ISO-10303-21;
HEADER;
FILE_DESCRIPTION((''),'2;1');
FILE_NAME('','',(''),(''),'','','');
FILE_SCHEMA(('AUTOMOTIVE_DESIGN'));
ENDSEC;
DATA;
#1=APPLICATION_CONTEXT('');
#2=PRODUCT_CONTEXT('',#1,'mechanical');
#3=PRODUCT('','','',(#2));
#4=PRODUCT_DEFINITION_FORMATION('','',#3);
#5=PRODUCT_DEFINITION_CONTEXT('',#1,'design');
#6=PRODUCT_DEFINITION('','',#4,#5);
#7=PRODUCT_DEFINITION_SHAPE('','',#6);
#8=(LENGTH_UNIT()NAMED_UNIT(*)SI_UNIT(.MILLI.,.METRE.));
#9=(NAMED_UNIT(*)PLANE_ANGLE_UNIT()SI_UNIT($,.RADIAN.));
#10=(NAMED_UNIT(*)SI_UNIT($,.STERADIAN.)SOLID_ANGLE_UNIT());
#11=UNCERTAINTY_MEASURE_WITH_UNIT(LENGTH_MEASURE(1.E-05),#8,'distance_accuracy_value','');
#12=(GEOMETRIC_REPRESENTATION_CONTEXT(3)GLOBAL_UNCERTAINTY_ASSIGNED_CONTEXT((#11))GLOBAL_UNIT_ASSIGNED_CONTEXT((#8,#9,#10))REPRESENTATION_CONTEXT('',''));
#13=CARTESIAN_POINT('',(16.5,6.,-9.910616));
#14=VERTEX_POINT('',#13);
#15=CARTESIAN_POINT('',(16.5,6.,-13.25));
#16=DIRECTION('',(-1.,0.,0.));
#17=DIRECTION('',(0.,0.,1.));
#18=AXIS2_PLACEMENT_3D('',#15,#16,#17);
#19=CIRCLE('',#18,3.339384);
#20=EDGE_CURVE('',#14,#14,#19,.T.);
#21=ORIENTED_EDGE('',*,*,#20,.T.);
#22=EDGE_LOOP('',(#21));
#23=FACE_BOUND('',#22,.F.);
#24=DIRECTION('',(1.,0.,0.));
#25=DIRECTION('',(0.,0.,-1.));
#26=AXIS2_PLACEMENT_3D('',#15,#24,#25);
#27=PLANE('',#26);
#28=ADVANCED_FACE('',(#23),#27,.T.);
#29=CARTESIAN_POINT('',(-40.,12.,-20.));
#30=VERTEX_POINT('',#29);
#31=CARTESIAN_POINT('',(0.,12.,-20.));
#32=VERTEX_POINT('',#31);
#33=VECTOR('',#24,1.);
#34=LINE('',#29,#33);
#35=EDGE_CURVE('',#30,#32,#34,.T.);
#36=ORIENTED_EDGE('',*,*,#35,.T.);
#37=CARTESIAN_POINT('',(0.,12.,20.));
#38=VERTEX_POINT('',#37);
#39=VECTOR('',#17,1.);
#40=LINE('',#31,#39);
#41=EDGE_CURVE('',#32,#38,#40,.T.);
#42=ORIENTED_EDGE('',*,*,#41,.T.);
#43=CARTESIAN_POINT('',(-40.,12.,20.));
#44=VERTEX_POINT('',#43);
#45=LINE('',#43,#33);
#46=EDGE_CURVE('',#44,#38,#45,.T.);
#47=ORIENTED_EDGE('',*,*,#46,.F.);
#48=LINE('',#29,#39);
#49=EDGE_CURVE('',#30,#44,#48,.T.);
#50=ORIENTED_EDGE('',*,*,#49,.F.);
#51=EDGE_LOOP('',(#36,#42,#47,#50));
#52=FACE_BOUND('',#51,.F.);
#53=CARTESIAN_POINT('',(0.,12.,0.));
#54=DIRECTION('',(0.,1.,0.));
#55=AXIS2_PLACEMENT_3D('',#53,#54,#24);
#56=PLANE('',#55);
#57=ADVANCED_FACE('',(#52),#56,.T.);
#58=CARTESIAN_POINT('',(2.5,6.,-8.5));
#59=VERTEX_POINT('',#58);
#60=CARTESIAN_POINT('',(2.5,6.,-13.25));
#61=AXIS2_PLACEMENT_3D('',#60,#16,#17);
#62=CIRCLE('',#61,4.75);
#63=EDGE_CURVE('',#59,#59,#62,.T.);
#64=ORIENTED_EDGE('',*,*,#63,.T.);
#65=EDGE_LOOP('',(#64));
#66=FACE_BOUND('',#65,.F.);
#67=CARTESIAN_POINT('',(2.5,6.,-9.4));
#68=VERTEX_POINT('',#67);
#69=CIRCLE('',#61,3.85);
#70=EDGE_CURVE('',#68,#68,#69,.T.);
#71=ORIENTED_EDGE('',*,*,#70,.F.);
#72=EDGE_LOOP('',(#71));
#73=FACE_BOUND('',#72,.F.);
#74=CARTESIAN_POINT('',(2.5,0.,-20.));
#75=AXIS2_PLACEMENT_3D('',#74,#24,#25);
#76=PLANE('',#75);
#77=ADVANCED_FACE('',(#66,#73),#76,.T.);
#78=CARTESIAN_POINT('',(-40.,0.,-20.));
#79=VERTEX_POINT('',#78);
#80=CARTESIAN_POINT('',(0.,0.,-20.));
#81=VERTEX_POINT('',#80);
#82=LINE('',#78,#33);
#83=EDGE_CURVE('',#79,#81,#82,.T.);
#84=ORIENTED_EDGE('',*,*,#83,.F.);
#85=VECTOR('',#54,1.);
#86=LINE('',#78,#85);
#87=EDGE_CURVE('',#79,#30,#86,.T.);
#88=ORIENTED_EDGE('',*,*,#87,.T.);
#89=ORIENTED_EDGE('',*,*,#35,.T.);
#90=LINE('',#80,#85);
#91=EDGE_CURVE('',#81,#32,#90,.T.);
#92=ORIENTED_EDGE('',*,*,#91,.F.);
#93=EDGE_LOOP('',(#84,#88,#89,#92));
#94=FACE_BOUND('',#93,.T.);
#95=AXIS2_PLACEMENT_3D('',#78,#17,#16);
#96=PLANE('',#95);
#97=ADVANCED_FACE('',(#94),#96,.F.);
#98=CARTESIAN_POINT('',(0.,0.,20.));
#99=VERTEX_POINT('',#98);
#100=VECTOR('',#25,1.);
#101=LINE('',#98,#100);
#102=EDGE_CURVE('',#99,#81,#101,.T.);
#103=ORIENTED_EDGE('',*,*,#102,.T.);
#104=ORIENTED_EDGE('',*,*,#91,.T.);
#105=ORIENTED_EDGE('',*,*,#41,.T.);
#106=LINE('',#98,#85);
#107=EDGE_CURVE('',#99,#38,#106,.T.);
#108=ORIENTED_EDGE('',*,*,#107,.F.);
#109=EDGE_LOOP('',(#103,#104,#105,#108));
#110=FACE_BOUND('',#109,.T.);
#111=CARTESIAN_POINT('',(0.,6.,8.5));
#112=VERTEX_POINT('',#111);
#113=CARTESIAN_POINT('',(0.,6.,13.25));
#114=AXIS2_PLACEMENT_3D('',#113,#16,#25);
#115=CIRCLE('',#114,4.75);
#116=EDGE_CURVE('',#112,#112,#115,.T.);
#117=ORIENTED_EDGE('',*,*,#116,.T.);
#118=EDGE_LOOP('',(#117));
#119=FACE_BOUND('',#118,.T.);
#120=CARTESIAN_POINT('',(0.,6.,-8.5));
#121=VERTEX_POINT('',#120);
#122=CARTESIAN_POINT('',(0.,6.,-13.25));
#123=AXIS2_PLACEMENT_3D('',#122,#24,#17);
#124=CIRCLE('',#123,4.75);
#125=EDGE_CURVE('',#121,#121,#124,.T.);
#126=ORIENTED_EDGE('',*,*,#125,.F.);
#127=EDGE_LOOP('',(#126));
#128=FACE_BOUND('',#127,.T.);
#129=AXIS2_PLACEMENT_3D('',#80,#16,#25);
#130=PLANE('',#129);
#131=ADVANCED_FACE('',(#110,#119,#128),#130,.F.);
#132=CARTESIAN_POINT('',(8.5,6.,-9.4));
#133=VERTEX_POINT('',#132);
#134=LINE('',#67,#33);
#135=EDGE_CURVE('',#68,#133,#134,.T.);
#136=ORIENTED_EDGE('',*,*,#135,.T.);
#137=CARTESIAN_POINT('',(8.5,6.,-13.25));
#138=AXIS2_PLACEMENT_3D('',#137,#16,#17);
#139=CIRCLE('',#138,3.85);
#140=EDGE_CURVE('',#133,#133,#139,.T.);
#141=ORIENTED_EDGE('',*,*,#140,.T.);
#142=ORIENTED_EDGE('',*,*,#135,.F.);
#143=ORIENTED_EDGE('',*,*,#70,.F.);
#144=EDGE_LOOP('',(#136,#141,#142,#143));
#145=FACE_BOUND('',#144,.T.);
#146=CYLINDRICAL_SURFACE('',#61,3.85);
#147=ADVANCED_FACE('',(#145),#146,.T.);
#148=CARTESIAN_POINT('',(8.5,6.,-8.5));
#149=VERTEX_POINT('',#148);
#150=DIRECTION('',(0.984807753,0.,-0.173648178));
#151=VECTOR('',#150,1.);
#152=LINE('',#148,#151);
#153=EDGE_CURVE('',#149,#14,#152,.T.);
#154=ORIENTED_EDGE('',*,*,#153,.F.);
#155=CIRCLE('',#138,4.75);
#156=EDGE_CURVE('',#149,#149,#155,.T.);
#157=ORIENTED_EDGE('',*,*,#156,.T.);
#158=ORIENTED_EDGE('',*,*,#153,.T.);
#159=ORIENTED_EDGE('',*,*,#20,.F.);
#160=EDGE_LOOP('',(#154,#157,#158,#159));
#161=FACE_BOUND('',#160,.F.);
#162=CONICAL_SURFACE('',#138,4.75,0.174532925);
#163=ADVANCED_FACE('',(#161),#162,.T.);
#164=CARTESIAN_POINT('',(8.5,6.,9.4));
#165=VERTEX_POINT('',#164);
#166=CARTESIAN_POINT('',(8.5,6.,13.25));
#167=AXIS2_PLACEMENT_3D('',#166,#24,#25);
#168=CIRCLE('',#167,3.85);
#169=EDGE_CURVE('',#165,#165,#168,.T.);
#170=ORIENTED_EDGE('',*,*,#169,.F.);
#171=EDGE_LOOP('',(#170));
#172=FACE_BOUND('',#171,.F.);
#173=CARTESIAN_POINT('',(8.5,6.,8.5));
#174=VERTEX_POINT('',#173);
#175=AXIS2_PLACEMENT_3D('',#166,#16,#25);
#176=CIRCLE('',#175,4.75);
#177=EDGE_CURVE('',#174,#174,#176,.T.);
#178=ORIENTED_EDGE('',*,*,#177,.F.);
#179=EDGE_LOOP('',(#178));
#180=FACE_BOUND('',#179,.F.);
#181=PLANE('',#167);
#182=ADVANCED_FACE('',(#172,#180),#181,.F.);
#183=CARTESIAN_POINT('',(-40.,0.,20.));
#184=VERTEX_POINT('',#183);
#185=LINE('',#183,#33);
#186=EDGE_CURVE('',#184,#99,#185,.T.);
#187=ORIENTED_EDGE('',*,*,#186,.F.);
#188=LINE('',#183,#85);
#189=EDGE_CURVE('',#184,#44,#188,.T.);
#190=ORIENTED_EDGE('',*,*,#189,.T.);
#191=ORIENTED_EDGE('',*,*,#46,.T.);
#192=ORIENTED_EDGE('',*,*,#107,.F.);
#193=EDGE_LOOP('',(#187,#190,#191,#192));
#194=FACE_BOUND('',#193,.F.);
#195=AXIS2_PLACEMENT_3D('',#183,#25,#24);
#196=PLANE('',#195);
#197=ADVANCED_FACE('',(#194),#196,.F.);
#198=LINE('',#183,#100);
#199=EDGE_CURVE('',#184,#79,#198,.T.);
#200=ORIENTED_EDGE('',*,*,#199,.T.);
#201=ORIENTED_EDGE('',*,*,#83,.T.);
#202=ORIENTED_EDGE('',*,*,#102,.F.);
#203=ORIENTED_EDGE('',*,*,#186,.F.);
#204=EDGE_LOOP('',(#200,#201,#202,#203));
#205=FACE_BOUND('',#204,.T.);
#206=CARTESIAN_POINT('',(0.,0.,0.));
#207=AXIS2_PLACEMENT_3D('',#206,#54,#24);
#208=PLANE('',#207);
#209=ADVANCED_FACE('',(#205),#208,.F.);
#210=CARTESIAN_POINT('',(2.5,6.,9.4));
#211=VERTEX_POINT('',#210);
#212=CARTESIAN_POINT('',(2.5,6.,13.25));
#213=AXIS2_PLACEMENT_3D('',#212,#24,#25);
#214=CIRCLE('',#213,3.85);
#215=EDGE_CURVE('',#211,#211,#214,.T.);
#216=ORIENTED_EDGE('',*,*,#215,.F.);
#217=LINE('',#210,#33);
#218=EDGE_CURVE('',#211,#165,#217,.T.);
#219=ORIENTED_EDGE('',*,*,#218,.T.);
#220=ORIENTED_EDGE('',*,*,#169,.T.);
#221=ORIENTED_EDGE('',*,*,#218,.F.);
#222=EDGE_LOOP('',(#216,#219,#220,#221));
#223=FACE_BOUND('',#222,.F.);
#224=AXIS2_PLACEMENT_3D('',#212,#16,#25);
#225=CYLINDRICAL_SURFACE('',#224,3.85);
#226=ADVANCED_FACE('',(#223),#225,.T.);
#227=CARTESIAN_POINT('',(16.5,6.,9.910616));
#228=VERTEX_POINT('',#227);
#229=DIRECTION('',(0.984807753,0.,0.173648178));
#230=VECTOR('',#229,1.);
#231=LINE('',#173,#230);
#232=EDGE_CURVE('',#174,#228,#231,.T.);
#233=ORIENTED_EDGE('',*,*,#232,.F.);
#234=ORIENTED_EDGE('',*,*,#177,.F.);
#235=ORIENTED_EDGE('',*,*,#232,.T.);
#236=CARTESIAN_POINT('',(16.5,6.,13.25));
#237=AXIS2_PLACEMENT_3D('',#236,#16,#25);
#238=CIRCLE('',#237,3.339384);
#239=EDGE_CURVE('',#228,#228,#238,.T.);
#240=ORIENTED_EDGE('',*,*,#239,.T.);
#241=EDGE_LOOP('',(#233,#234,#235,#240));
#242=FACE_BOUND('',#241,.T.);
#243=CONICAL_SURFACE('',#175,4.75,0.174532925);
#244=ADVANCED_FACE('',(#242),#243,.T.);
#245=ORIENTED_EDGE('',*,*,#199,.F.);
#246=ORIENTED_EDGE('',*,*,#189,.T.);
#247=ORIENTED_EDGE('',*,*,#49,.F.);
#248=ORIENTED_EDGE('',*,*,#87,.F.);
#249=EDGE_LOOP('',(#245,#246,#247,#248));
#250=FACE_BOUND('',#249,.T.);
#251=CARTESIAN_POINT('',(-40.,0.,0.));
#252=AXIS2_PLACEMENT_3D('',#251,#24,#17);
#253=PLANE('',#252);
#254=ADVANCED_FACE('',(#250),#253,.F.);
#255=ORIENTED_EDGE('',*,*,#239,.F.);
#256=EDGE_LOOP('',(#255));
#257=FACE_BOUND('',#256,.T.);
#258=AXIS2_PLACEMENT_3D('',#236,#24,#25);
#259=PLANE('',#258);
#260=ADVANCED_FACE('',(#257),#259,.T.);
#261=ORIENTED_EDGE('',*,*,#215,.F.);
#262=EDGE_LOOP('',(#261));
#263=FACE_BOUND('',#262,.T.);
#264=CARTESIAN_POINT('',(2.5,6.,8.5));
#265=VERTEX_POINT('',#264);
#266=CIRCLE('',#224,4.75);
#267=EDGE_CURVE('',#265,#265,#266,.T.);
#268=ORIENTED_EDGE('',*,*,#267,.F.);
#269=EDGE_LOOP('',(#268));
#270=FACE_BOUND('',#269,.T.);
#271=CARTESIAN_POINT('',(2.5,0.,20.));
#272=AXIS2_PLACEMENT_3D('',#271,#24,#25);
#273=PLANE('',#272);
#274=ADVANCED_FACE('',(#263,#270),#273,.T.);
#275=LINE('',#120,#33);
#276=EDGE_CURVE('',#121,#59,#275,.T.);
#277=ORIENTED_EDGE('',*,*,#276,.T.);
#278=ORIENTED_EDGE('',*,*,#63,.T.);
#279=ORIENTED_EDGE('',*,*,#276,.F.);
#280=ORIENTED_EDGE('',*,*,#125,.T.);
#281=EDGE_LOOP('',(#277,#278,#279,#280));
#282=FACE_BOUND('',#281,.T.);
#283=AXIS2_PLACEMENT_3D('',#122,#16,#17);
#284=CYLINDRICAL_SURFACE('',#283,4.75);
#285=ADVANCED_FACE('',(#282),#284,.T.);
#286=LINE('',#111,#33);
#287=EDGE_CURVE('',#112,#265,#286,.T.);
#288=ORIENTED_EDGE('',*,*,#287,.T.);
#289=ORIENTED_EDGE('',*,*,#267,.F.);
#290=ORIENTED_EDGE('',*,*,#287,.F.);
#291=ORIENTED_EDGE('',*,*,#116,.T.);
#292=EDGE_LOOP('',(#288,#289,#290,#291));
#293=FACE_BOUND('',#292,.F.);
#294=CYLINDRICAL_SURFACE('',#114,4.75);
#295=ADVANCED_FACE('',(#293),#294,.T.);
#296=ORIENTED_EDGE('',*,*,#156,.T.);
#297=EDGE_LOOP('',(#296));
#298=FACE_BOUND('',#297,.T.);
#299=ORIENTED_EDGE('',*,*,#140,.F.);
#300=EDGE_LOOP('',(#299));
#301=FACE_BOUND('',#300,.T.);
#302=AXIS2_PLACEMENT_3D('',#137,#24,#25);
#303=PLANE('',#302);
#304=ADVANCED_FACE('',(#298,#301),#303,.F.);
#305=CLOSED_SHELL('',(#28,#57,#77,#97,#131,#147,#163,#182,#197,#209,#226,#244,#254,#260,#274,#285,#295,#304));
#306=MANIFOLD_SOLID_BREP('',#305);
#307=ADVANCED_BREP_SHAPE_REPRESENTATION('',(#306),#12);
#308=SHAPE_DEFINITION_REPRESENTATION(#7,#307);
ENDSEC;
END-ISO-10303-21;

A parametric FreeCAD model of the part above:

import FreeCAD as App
import Part
import Sketcher
Q = App.Units.Quantity


def add_polygon(sketch, points):
    """Adds a closed chain of lines whose ends are joined by coincident constraints."""
    first, n = sketch.GeometryCount, len(points)
    for a, b in zip(points, points[1:] + points[:1]):
        sketch.addGeometry(Part.LineSegment(App.Vector(*a, 0), App.Vector(*b, 0)), False)
    for i in range(n):
        sketch.addConstraint(Sketcher.Constraint("Coincident", first + i, 2, first + (i + 1) % n, 1))

doc = App.newDocument("Part")
body = doc.addObject("PartDesign::Body", "Body")

sketch1 = body.newObject("Sketcher::SketchObject", "Sketch")
sketch1.AttachmentSupport = (doc.getObject("XZ_Plane"), [""])
sketch1.MapMode = "FlatFace"
add_polygon(sketch1, [(0, 20), (0, 0), (-40, 0), (-40, 20)])
sketch1.addConstraint([
    Sketcher.Constraint("Vertical", 0),
    Sketcher.Constraint("Horizontal", 1),
    Sketcher.Constraint("Vertical", 2),
    Sketcher.Constraint("Horizontal", 3),
    Sketcher.Constraint("Coincident", 0, 2, -1, 1),
    Sketcher.Constraint("DistanceX", 1, 2, 1, 1, Q("40 mm")),
    Sketcher.Constraint("DistanceY", 0, 2, 0, 1, Q("20 mm")),
])
pad1 = body.newObject("PartDesign::Pad", "Pad")
pad1.Profile = sketch1
pad1.Length = 12
pad1.Reversed = True

sketch2 = body.newObject("Sketcher::SketchObject", "Sketch001")
sketch2.AttachmentSupport = (doc.getObject("YZ_Plane"), [""])
sketch2.MapMode = "FlatFace"
sketch2.addGeometry(Part.Circle(App.Vector(6, 13.25, 0), App.Vector(0, 0, 1), 4.75), False)
sketch2.addConstraint([
    Sketcher.Constraint("Diameter", 0, Q("9.5 mm")),
    Sketcher.Constraint("DistanceX", -1, 1, 0, 3, Q("6 mm")),
    Sketcher.Constraint("DistanceY", -1, 1, 0, 3, Q("13.25 mm")),
])
pad2 = body.newObject("PartDesign::Pad", "Pad001")
pad2.Profile = sketch2
pad2.Length = 2.5

sketch3 = body.newObject("Sketcher::SketchObject", "Sketch002")
sketch3.AttachmentSupport = (doc.getObject("YZ_Plane"), [""])
sketch3.MapMode = "FlatFace"
sketch3.AttachmentOffset = App.Placement(App.Vector(0, 0, 2.5), App.Rotation())
sketch3.addGeometry(Part.Circle(App.Vector(6, 13.25, 0), App.Vector(0, 0, 1), 3.85), False)
sketch3.addConstraint([
    Sketcher.Constraint("Diameter", 0, Q("7.7 mm")),
    Sketcher.Constraint("DistanceX", -1, 1, 0, 3, Q("6 mm")),
    Sketcher.Constraint("DistanceY", -1, 1, 0, 3, Q("13.25 mm")),
])
pad3 = body.newObject("PartDesign::Pad", "Pad002")
pad3.Profile = sketch3
pad3.Length = 6

sketch4 = body.newObject("Sketcher::SketchObject", "Sketch003")
sketch4.AttachmentSupport = (doc.getObject("YZ_Plane"), [""])
sketch4.MapMode = "FlatFace"
sketch4.AttachmentOffset = App.Placement(App.Vector(0, 0, 8.5), App.Rotation())
sketch4.addGeometry(Part.Circle(App.Vector(6, 13.25, 0), App.Vector(0, 0, 1), 4.75), False)
sketch4.addConstraint([
    Sketcher.Constraint("Diameter", 0, Q("9.5 mm")),
    Sketcher.Constraint("DistanceX", -1, 1, 0, 3, Q("6 mm")),
    Sketcher.Constraint("DistanceY", -1, 1, 0, 3, Q("13.25 mm")),
])
pad4 = body.newObject("PartDesign::Pad", "Pad003")
pad4.Profile = sketch4
pad4.Length = 8
pad4.TaperAngle = -10
doc.recompute()

mirrored = body.newObject("PartDesign::Mirrored", "Mirrored")
mirrored.Originals = [pad4, pad3, pad2, pad1]
mirrored.MirrorPlane = (doc.getObject("XY_Plane"), [""])
body.Tip = mirrored

doc.recompute()
